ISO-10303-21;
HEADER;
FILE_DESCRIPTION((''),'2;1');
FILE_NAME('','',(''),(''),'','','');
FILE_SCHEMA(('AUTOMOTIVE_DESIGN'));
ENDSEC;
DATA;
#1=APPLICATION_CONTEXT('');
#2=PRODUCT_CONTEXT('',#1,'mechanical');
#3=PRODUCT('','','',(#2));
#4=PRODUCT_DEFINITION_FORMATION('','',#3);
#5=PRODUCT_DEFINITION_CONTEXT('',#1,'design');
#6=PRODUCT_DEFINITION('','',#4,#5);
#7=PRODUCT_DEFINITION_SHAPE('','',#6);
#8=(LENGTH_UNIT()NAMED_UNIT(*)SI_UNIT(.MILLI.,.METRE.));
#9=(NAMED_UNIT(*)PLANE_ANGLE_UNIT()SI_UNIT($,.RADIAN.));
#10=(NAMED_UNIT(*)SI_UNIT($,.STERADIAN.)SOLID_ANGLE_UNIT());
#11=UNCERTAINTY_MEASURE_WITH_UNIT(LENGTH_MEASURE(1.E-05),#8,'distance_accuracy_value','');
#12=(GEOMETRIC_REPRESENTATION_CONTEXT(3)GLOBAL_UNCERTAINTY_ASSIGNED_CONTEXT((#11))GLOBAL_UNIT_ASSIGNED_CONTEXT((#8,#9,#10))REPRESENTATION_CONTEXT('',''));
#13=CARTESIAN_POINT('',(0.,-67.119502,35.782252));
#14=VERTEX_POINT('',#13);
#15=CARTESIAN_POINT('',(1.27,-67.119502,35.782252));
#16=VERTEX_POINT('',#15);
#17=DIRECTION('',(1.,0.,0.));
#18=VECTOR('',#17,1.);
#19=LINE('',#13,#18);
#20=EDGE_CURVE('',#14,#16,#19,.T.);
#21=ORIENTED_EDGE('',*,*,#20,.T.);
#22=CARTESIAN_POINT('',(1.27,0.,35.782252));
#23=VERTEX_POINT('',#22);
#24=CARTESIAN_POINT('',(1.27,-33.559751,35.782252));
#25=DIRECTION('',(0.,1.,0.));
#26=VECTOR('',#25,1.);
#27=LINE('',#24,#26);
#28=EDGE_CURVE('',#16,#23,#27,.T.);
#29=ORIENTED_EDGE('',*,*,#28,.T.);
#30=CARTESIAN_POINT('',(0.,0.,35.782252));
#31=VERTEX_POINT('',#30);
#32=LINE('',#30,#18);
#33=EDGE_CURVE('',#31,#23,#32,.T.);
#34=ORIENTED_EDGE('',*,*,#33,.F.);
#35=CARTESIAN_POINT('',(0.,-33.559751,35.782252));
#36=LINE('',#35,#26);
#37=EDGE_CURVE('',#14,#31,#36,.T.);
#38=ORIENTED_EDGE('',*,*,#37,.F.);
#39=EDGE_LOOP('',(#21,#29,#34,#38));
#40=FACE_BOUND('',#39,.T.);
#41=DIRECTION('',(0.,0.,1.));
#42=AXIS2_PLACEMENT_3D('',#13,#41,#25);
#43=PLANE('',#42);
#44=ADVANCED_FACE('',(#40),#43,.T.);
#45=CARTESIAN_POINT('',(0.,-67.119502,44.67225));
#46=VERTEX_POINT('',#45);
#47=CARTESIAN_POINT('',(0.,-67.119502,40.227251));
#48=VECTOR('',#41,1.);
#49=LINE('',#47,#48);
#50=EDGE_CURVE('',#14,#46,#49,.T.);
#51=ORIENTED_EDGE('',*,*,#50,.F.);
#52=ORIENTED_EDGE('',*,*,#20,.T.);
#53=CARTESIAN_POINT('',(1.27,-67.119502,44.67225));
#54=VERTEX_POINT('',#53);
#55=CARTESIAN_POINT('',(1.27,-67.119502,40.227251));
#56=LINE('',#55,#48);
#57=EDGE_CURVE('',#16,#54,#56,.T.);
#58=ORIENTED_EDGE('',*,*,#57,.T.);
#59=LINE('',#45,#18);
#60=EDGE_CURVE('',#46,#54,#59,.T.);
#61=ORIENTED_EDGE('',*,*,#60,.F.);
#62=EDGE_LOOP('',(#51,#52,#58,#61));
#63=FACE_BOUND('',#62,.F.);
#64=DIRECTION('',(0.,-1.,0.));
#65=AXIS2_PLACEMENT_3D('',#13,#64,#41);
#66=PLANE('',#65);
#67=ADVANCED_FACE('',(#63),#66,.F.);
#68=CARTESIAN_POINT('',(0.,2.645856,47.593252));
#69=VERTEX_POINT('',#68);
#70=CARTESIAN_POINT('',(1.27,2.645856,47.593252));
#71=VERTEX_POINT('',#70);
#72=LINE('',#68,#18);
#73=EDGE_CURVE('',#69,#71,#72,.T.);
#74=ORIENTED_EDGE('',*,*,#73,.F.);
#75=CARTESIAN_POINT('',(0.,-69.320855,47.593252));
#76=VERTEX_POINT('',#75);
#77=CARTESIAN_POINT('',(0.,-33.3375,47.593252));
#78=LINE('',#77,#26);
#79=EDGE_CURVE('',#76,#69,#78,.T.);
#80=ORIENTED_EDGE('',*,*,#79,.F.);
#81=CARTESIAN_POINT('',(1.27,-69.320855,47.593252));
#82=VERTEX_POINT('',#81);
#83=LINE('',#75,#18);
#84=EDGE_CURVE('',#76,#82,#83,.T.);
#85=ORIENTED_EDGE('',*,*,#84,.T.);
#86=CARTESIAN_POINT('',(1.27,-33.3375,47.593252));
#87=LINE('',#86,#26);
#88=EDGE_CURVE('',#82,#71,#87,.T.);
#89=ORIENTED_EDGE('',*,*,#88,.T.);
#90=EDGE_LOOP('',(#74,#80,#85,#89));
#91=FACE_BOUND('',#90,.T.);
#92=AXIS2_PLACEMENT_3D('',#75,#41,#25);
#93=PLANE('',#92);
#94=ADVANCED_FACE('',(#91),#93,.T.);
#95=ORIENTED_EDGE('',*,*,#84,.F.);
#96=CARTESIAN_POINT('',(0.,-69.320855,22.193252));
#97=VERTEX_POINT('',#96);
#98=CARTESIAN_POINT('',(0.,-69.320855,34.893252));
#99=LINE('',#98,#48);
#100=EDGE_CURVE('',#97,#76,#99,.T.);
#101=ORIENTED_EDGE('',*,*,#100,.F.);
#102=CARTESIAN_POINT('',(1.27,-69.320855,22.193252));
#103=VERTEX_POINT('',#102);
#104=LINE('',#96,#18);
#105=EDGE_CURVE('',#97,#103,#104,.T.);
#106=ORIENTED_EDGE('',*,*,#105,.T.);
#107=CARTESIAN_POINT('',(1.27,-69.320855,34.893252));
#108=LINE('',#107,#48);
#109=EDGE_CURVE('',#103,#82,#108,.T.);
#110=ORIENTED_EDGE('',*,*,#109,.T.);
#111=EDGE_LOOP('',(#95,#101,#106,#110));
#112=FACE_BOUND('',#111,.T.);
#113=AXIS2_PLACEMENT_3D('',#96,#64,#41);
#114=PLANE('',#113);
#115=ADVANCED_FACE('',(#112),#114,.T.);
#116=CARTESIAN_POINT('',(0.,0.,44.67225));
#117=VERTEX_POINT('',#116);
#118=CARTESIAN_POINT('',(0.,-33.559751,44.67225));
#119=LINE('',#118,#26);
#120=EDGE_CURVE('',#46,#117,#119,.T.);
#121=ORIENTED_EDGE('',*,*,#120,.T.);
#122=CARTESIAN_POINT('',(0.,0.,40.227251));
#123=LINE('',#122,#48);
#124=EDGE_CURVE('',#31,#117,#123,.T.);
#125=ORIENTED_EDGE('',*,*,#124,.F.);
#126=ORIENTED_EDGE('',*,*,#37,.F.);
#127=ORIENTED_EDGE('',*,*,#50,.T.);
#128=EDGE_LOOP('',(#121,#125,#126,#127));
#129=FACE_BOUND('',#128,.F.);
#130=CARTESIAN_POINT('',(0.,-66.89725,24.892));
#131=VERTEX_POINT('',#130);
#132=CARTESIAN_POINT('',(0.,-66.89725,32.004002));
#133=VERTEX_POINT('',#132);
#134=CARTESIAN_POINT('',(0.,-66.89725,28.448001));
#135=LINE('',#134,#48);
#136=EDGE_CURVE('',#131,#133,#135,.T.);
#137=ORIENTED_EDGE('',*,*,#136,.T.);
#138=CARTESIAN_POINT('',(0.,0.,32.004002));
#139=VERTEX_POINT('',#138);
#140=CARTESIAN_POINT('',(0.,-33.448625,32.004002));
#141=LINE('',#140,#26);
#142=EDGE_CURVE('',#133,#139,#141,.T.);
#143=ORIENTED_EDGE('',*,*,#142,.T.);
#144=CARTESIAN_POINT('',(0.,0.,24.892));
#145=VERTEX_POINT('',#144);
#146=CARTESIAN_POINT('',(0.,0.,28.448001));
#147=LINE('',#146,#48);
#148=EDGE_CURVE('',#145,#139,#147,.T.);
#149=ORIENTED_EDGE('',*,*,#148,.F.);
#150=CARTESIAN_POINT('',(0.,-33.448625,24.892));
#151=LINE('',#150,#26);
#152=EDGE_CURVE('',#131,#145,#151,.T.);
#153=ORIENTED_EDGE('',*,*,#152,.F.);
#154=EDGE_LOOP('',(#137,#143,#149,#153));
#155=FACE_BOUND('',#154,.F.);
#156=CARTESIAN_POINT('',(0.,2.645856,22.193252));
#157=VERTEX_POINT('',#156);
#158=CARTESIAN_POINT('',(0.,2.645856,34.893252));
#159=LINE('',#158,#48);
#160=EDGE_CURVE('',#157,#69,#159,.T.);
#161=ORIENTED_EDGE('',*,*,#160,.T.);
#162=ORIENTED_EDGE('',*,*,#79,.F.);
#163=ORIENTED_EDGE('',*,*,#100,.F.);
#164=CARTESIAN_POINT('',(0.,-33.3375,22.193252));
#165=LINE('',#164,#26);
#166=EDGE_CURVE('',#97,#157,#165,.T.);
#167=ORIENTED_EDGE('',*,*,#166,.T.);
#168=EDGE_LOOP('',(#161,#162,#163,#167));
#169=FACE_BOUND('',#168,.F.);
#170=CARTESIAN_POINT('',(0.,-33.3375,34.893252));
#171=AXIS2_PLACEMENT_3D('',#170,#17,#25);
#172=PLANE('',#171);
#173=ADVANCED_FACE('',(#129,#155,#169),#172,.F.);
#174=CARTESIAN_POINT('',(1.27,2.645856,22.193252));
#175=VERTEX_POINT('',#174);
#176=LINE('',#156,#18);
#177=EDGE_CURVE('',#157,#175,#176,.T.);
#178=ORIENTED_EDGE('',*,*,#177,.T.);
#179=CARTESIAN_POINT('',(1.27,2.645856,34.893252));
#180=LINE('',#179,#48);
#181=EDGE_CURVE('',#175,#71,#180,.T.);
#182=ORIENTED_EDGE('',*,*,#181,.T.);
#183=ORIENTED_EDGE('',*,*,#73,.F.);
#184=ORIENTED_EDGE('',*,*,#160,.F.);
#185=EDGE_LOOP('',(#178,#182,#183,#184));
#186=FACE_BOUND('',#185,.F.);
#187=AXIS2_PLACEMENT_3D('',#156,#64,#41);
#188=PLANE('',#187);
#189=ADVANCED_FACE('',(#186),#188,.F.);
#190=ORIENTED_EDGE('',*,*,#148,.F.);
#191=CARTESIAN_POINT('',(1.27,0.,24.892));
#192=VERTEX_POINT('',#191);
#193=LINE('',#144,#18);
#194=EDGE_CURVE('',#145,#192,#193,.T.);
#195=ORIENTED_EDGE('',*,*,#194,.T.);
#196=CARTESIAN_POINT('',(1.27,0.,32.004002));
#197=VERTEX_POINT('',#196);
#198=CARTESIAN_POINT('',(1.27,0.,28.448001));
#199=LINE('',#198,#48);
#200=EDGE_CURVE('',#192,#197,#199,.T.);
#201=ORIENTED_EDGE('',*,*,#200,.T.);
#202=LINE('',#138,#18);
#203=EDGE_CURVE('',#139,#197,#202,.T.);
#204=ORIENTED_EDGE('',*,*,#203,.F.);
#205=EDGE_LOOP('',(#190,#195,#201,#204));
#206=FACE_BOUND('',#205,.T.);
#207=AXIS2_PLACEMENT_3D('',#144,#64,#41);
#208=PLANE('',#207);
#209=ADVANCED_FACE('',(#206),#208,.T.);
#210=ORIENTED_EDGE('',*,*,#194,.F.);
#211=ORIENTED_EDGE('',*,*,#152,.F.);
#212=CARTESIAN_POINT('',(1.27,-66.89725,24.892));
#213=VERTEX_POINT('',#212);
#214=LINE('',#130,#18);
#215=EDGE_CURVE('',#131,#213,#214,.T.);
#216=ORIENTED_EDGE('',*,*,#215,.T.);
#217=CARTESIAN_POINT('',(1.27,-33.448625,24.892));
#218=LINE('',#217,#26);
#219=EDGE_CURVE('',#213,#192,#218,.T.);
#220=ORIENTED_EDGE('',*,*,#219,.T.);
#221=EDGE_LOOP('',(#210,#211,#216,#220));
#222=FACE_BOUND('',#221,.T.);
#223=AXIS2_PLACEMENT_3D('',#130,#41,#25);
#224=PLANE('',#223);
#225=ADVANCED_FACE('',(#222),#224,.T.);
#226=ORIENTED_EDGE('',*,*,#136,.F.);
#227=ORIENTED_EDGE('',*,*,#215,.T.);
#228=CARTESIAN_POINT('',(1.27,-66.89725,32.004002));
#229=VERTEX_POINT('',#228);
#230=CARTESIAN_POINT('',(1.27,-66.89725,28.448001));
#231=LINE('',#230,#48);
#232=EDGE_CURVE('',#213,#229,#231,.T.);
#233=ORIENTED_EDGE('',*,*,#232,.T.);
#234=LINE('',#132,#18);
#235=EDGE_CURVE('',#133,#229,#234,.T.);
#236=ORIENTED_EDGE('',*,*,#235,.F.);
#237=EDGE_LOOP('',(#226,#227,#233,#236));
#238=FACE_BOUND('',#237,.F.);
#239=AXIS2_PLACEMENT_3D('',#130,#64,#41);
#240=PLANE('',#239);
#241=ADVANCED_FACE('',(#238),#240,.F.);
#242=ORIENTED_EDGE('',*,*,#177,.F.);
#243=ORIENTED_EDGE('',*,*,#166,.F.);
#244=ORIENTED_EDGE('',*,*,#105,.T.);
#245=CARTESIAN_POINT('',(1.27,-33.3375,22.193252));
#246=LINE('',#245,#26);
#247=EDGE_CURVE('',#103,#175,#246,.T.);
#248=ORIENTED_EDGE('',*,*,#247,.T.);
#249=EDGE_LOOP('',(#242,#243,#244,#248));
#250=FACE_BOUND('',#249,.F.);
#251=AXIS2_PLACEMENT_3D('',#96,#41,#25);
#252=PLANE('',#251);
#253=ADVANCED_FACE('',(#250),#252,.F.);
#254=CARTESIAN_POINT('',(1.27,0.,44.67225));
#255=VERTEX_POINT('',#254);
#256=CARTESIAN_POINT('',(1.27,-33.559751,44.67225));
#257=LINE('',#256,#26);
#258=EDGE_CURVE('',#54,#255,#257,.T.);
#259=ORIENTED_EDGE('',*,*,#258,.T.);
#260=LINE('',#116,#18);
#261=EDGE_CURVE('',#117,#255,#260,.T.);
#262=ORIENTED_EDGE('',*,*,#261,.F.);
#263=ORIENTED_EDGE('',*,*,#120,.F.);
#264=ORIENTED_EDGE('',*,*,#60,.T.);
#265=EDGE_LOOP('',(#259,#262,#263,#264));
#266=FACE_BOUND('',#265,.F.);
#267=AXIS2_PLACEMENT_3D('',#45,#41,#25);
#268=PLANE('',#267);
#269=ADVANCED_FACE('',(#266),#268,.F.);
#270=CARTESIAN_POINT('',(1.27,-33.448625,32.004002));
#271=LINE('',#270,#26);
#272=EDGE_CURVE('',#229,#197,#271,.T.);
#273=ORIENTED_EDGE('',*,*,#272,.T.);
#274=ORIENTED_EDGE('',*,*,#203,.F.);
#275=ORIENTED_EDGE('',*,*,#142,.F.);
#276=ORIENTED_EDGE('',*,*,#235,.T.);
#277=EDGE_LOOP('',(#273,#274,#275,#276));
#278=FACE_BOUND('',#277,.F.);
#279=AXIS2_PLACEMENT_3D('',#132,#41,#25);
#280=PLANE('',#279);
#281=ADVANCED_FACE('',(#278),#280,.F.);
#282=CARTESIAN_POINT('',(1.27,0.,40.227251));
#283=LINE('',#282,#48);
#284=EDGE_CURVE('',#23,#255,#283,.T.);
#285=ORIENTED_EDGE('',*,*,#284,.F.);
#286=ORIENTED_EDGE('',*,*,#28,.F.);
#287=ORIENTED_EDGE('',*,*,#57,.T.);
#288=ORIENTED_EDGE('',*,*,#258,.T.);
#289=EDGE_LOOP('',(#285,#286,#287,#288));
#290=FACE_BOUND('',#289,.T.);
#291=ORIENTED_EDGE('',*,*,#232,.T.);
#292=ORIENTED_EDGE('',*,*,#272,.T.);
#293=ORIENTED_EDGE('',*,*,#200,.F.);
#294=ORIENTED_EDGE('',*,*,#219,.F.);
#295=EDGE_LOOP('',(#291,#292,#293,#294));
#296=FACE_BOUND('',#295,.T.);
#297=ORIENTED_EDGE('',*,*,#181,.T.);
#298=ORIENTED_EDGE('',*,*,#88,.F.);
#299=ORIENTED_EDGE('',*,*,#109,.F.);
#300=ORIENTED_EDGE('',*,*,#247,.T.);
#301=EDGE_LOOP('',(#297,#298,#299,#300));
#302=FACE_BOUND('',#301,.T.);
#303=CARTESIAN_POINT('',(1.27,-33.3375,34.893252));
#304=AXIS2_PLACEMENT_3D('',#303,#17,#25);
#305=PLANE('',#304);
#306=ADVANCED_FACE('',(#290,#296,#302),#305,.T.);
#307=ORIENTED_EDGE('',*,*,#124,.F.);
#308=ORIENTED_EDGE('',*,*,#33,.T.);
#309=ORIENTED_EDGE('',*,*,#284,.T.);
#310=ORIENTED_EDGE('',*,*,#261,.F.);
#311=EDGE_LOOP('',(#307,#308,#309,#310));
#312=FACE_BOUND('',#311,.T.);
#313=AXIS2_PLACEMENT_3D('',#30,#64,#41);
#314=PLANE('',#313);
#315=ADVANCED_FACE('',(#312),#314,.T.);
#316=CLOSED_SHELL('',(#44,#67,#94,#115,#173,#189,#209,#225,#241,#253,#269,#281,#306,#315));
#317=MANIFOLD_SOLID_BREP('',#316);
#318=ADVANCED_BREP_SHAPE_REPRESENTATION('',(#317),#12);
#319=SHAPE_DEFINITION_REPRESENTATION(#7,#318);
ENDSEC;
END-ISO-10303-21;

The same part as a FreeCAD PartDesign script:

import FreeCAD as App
import Part
import Sketcher
Q = App.Units.Quantity


def add_polygon(sketch, points):
    """Adds a closed chain of lines whose ends are joined by coincident constraints."""
    first, n = sketch.GeometryCount, len(points)
    for a, b in zip(points, points[1:] + points[:1]):
        sketch.addGeometry(Part.LineSegment(App.Vector(*a, 0), App.Vector(*b, 0)), False)
    for i in range(n):
        sketch.addConstraint(Sketcher.Constraint("Coincident", first + i, 2, first + (i + 1) % n, 1))

doc = App.newDocument("Part")
body = doc.addObject("PartDesign::Body", "Body")

# Sketch on YZ plane
sketch1 = body.newObject("Sketcher::SketchObject", "Sketch")
sketch1.AttachmentSupport = (doc.getObject("YZ_Plane"), [""])
sketch1.MapMode = "FlatFace"
add_polygon(sketch1, [(-69, 48), (-69, 22), (3, 22), (3, 48)])  # lines 0-3
add_polygon(sketch1, [(0, 25), (-67, 25), (-67, 32), (0, 32)])  # lines 4-7
add_polygon(sketch1, [(0, 36), (-67, 36), (-67, 45), (0, 45)])  # lines 8-11
sketch1.addConstraint([
    Sketcher.Constraint("Vertical", 0),
    Sketcher.Constraint("Horizontal", 1),
    Sketcher.Constraint("Vertical", 2),
    Sketcher.Constraint("Horizontal", 3),
    Sketcher.Constraint("Horizontal", 4),
    Sketcher.Constraint("Vertical", 5),
    Sketcher.Constraint("Horizontal", 6),
    Sketcher.Constraint("Vertical", 7),
    Sketcher.Constraint("Horizontal", 8),
    Sketcher.Constraint("Vertical", 9),
    Sketcher.Constraint("Horizontal", 10),
    Sketcher.Constraint("Vertical", 11),
    Sketcher.Constraint("PointOnObject", 6, 2, -2),
    Sketcher.Constraint("PointOnObject", 10, 2, -2),
    Sketcher.Constraint("DistanceY", 0, 2, 0, 1, Q("1 in")),
    Sketcher.Constraint("DistanceY", 5, 1, 5, 2, Q("0.2800001 in")),
    Sketcher.Constraint("DistanceY", 9, 1, 9, 2, Q("0.35 in")),
    Sketcher.Constraint("DistanceY", -1, 1, 4, 2, Q("0.98 in")),
    Sketcher.Constraint("DistanceX", 8, 2, 8, 1, Q("2.6425001 in")),
    Sketcher.Constraint("DistanceY", 8, 2, 3, 2, Q("0.465 in")),
    Sketcher.Constraint("DistanceX", 1, 1, 1, 2, Q("71.966711 mm")),
    Sketcher.Constraint("DistanceX", 4, 2, 4, 1, Q("66.897251 mm")),
    Sketcher.Constraint("DistanceY", -1, 1, 8, 2, Q("35.782252 mm")),
    Sketcher.Constraint("DistanceX", 0, 2, -1, 1, Q("69.320855 mm")),
])
pad1 = body.newObject("PartDesign::Pad", "Pad")
pad1.Profile = sketch1
pad1.Length = Q("0.05 in")

doc.recompute()
